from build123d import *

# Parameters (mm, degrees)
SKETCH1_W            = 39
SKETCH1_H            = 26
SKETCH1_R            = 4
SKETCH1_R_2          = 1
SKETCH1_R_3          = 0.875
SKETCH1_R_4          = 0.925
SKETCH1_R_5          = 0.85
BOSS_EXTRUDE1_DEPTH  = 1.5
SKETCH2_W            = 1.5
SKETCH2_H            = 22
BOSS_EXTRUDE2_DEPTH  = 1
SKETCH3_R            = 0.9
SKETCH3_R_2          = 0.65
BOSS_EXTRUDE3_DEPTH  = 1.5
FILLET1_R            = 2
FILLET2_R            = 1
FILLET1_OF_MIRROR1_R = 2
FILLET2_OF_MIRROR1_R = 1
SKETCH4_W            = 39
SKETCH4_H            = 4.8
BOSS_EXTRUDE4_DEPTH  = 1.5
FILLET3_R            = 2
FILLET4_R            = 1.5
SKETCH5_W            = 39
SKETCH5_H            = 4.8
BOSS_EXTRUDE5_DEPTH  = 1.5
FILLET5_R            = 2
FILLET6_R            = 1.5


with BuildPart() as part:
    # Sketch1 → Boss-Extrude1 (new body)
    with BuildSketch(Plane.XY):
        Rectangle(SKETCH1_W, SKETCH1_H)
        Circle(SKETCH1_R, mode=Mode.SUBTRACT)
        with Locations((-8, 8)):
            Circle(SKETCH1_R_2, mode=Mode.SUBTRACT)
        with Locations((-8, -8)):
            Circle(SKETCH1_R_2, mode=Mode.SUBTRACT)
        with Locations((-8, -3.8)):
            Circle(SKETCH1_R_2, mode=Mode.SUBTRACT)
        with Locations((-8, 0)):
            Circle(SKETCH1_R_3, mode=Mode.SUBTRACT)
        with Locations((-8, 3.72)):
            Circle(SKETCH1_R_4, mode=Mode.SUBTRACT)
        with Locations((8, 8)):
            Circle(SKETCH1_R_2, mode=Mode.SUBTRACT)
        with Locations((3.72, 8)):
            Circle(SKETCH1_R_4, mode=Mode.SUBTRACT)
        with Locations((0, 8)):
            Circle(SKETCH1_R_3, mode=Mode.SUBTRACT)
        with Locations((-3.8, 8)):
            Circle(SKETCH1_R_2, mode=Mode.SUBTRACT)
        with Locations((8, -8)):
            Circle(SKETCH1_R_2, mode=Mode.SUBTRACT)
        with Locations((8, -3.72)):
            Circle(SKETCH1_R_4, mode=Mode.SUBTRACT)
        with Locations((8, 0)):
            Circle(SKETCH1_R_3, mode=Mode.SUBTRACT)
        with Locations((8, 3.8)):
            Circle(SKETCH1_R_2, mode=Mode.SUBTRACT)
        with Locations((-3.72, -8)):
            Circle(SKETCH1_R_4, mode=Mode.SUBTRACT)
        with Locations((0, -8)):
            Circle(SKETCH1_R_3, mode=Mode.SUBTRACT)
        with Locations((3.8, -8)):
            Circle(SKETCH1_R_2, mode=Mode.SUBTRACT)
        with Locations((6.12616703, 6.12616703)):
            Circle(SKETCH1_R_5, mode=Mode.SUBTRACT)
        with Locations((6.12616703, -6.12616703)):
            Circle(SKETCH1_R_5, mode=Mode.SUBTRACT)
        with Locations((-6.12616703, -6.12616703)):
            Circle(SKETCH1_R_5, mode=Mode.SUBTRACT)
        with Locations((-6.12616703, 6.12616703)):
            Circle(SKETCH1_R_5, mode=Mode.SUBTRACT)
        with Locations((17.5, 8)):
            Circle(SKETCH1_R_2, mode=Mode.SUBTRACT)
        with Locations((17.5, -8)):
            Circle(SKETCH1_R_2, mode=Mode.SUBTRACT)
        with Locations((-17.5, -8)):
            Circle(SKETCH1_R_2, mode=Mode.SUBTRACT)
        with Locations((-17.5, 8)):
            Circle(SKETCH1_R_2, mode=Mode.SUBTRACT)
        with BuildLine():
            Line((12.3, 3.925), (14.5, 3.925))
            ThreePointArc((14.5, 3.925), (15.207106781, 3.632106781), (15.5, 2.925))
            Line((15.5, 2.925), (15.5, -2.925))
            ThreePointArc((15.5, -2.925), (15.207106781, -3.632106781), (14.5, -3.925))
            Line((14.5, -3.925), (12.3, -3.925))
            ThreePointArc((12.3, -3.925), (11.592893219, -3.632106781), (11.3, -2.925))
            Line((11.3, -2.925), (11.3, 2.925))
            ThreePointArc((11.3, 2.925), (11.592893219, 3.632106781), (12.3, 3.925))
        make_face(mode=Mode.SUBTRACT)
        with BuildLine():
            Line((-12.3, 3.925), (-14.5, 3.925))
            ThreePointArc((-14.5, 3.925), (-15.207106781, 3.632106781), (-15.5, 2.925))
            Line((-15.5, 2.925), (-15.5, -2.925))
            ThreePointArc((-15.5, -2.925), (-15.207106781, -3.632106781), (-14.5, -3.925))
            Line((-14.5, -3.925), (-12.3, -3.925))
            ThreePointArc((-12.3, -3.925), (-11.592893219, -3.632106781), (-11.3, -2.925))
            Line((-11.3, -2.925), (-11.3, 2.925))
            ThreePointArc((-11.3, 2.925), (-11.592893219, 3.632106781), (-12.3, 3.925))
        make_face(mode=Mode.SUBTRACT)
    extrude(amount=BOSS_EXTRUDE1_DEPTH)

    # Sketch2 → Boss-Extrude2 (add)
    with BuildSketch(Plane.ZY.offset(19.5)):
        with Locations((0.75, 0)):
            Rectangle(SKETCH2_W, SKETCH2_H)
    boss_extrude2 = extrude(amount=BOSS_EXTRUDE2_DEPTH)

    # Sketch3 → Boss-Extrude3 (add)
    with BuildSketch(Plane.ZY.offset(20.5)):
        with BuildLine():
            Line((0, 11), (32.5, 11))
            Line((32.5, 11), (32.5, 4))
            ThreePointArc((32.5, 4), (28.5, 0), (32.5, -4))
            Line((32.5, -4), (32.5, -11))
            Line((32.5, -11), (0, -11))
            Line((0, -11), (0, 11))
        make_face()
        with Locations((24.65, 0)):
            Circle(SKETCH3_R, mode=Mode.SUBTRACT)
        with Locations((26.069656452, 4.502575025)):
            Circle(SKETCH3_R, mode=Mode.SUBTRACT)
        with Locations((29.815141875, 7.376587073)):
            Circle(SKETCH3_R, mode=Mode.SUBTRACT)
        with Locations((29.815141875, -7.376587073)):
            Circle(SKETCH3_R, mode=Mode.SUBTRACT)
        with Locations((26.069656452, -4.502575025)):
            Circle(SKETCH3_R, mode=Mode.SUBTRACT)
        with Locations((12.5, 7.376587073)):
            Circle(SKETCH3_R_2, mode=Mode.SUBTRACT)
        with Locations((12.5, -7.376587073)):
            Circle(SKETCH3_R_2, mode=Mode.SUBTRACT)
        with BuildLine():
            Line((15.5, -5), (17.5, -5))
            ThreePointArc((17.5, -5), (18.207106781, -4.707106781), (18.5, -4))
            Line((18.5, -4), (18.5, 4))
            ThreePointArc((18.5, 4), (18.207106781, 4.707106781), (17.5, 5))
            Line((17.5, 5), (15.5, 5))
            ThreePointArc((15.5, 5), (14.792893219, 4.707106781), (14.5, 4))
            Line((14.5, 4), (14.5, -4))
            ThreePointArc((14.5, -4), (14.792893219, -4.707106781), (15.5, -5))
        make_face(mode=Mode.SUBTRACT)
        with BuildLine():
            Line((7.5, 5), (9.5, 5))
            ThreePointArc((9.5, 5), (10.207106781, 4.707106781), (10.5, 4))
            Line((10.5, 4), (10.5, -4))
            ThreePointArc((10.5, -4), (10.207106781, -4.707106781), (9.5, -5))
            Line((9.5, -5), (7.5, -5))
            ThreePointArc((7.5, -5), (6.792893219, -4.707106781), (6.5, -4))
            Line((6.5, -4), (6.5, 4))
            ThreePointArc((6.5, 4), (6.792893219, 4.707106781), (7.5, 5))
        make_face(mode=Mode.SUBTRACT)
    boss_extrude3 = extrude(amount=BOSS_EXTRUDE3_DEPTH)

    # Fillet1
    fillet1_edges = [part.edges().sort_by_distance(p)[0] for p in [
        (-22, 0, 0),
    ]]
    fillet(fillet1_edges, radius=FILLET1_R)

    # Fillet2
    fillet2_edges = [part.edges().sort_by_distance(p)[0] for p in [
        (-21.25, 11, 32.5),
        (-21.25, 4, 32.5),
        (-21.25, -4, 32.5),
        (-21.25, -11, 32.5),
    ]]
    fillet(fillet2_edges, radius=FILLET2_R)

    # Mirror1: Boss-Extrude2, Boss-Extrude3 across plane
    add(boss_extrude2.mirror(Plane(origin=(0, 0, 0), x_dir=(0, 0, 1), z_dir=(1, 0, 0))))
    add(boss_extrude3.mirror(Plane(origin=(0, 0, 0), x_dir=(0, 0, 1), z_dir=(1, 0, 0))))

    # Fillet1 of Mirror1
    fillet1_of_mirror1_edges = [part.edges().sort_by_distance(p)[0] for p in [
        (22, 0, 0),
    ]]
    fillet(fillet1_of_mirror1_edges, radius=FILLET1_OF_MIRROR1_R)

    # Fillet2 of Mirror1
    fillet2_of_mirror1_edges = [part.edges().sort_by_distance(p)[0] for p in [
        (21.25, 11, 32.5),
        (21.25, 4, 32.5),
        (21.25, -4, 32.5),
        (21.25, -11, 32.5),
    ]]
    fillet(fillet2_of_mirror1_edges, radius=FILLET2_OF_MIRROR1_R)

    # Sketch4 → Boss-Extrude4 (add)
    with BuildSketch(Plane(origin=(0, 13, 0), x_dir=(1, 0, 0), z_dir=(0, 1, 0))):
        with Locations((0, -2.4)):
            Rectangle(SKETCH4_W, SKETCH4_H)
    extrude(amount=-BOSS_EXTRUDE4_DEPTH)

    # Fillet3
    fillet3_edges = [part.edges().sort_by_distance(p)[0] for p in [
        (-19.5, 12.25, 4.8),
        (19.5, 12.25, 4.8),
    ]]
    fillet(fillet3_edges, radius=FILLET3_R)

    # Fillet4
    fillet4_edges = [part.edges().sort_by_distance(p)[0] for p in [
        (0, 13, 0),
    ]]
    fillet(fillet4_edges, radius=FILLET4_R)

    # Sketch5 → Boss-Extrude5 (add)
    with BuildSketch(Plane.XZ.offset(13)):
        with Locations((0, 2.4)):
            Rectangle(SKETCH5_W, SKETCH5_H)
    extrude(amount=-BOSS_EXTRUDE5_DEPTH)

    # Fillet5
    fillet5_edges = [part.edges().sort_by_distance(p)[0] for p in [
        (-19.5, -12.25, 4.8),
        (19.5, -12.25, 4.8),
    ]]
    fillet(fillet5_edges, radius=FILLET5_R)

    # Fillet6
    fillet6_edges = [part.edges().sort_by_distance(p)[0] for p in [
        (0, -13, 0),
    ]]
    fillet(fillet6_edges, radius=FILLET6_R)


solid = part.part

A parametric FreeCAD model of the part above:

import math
import FreeCAD as App
import Part
import Sketcher
from FreeCAD import Vector
Q = App.Units.Quantity


def edges_at(feature, points):
    """Names of the edges that pass closest to the given points."""
    edges = feature.Shape.Edges
    near = lambda p: min(range(len(edges)), key=lambda i: edges[i].distToShape(Part.Vertex(*p))[0])
    return sorted({f"Edge{near(p) + 1}" for p in points})

doc = App.newDocument("Part")
body = doc.addObject("PartDesign::Body", "Body")

sketch1 = body.newObject("Sketcher::SketchObject", "Sketch")
sketch1.AttachmentSupport = (doc.getObject("XY_Plane"), [""])
sketch1.MapMode = "FlatFace"
sketch1.addGeometry(Part.LineSegment(Vector(-19.5, 13, 0), Vector(-19.5, -13, 0)), False)
sketch1.addGeometry(Part.LineSegment(Vector(-19.5, -13, 0), Vector(19.5, -13, 0)), False)
sketch1.addGeometry(Part.LineSegment(Vector(19.5, -13, 0), Vector(19.5, 13, 0)), False)
sketch1.addGeometry(Part.LineSegment(Vector(19.5, 13, 0), Vector(-19.5, 13, 0)), False)
sketch1.addGeometry(Part.Circle(Vector(-17.5, -8, 0), Vector(0, 0, 1), 1), False)
sketch1.addGeometry(Part.Circle(Vector(-8, -8, 0), Vector(0, 0, 1), 1), False)
sketch1.addGeometry(Part.Circle(Vector(-3.7, -8, 0), Vector(0, 0, 1), 0.9), False)
sketch1.addGeometry(Part.Circle(Vector(-6.1, -6.1, 0), Vector(0, 0, 1), 0.8), False)
sketch1.addGeometry(Part.Circle(Vector(-8, -3.8, 0), Vector(0, 0, 1), 1), False)
sketch1.addGeometry(Part.Circle(Vector(0, -8, 0), Vector(0, 0, 1), 0.9), False)
sketch1.addGeometry(Part.Circle(Vector(3.8, -8, 0), Vector(0, 0, 1), 1), False)
sketch1.addGeometry(Part.Circle(Vector(8, -8, 0), Vector(0, 0, 1), 1), False)
sketch1.addGeometry(Part.Circle(Vector(6.1, -6.1, 0), Vector(0, 0, 1), 0.8), False)
sketch1.addGeometry(Part.Circle(Vector(17.5, -8, 0), Vector(0, 0, 1), 1), False)
sketch1.addGeometry(Part.Circle(Vector(8, -3.7, 0), Vector(0, 0, 1), 0.9), False)
sketch1.addGeometry(Part.LineSegment(Vector(-14.5, 3.9, 0), Vector(-12.3, 3.9, 0)), False)
sketch1.addGeometry(Part.ArcOfCircle(Part.Circle(Vector(-12.3, 2.9, 0), Vector(0, 0, 1), 1), math.radians(0), math.radians(90)), False)
sketch1.addGeometry(Part.LineSegment(Vector(-11.3, 2.9, 0), Vector(-11.3, -2.9, 0)), False)
sketch1.addGeometry(Part.ArcOfCircle(Part.Circle(Vector(-12.3, -2.9, 0), Vector(0, 0, 1), 1), math.radians(-90), math.radians(0)), False)
sketch1.addGeometry(Part.LineSegment(Vector(-12.3, -3.9, 0), Vector(-14.5, -3.9, 0)), False)
sketch1.addGeometry(Part.ArcOfCircle(Part.Circle(Vector(-14.5, -2.9, 0), Vector(0, 0, 1), 1), math.radians(-180), math.radians(-90)), False)
sketch1.addGeometry(Part.LineSegment(Vector(-15.5, -2.9, 0), Vector(-15.5, 2.9, 0)), False)
sketch1.addGeometry(Part.ArcOfCircle(Part.Circle(Vector(-14.5, 2.9, 0), Vector(0, 0, 1), 1), math.radians(90), math.radians(180)), False)
sketch1.addGeometry(Part.Circle(Vector(-8, 0, 0), Vector(0, 0, 1), 0.9), False)
sketch1.addGeometry(Part.Circle(Vector(-8, 3.7, 0), Vector(0, 0, 1), 0.9), False)
sketch1.addGeometry(Part.Circle(Vector(-17.5, 8, 0), Vector(0, 0, 1), 1), False)
sketch1.addGeometry(Part.Circle(Vector(-6.1, 6.1, 0), Vector(0, 0, 1), 0.8), False)
sketch1.addGeometry(Part.Circle(Vector(-8, 8, 0), Vector(0, 0, 1), 1), False)
sketch1.addGeometry(Part.Circle(Vector(-3.8, 8, 0), Vector(0, 0, 1), 1), False)
sketch1.addGeometry(Part.Circle(Vector(0, 0, 0), Vector(0, 0, 1), 4), False)
sketch1.addGeometry(Part.Circle(Vector(8, 0, 0), Vector(0, 0, 1), 0.9), False)
sketch1.addGeometry(Part.Circle(Vector(8, 3.8, 0), Vector(0, 0, 1), 1), False)
sketch1.addGeometry(Part.ArcOfCircle(Part.Circle(Vector(12.3, 2.9, 0), Vector(0, 0, 1), 1), math.radians(90), math.radians(180)), False)
sketch1.addGeometry(Part.LineSegment(Vector(12.3, 3.9, 0), Vector(14.5, 3.9, 0)), False)
sketch1.addGeometry(Part.ArcOfCircle(Part.Circle(Vector(14.5, 2.9, 0), Vector(0, 0, 1), 1), math.radians(0), math.radians(90)), False)
sketch1.addGeometry(Part.LineSegment(Vector(15.5, 2.9, 0), Vector(15.5, -2.9, 0)), False)
sketch1.addGeometry(Part.ArcOfCircle(Part.Circle(Vector(14.5, -2.9, 0), Vector(0, 0, 1), 1), math.radians(-90), math.radians(0)), False)
sketch1.addGeometry(Part.LineSegment(Vector(14.5, -3.9, 0), Vector(12.3, -3.9, 0)), False)
sketch1.addGeometry(Part.ArcOfCircle(Part.Circle(Vector(12.3, -2.9, 0), Vector(0, 0, 1), 1), math.radians(-180), math.radians(-90)), False)
sketch1.addGeometry(Part.LineSegment(Vector(11.3, -2.9, 0), Vector(11.3, 2.9, 0)), False)
sketch1.addGeometry(Part.Circle(Vector(6.1, 6.1, 0), Vector(0, 0, 1), 0.8), False)
sketch1.addGeometry(Part.Circle(Vector(0, 8, 0), Vector(0, 0, 1), 0.9), False)
sketch1.addGeometry(Part.Circle(Vector(3.7, 8, 0), Vector(0, 0, 1), 0.9), False)
sketch1.addGeometry(Part.Circle(Vector(8, 8, 0), Vector(0, 0, 1), 1), False)
sketch1.addGeometry(Part.Circle(Vector(17.5, 8, 0), Vector(0, 0, 1), 1), False)
sketch1.addConstraint(Sketcher.Constraint("Coincident", 0, 2, 1, 1))
sketch1.addConstraint(Sketcher.Constraint("Coincident", 1, 2, 2, 1))
sketch1.addConstraint(Sketcher.Constraint("Coincident", 2, 2, 3, 1))
sketch1.addConstraint(Sketcher.Constraint("Coincident", 3, 2, 0, 1))
sketch1.addConstraint(Sketcher.Constraint("Tangent", 15, 2, 16, 2))
sketch1.addConstraint(Sketcher.Constraint("Tangent", 16, 1, 17, 1))
sketch1.addConstraint(Sketcher.Constraint("Tangent", 17, 2, 18, 2))
sketch1.addConstraint(Sketcher.Constraint("Tangent", 18, 1, 19, 1))
sketch1.addConstraint(Sketcher.Constraint("Tangent", 19, 2, 20, 2))
sketch1.addConstraint(Sketcher.Constraint("Tangent", 20, 1, 21, 1))
sketch1.addConstraint(Sketcher.Constraint("Tangent", 21, 2, 22, 2))
sketch1.addConstraint(Sketcher.Constraint("Tangent", 22, 1, 15, 1))
sketch1.addConstraint(Sketcher.Constraint("Tangent", 32, 1, 33, 1))
sketch1.addConstraint(Sketcher.Constraint("Tangent", 33, 2, 34, 2))
sketch1.addConstraint(Sketcher.Constraint("Tangent", 34, 1, 35, 1))
sketch1.addConstraint(Sketcher.Constraint("Tangent", 35, 2, 36, 2))
sketch1.addConstraint(Sketcher.Constraint("Tangent", 36, 1, 37, 1))
sketch1.addConstraint(Sketcher.Constraint("Tangent", 37, 2, 38, 2))
sketch1.addConstraint(Sketcher.Constraint("Tangent", 38, 1, 39, 1))
sketch1.addConstraint(Sketcher.Constraint("Tangent", 39, 2, 32, 2))
sketch1.addConstraint(Sketcher.Constraint("Vertical", 0))
sketch1.addConstraint(Sketcher.Constraint("Horizontal", 1))
sketch1.addConstraint(Sketcher.Constraint("Vertical", 2))
sketch1.addConstraint(Sketcher.Constraint("Horizontal", 3))
sketch1.addConstraint(Sketcher.Constraint("Horizontal", 15))
sketch1.addConstraint(Sketcher.Constraint("Vertical", 17))
sketch1.addConstraint(Sketcher.Constraint("Horizontal", 19))
sketch1.addConstraint(Sketcher.Constraint("Vertical", 21))
sketch1.addConstraint(Sketcher.Constraint("Horizontal", 33))
sketch1.addConstraint(Sketcher.Constraint("Vertical", 35))
sketch1.addConstraint(Sketcher.Constraint("Horizontal", 37))
sketch1.addConstraint(Sketcher.Constraint("Vertical", 39))
sketch1.addConstraint(Sketcher.Constraint("Coincident", 29, 3, -1, 1))
sketch1.addConstraint(Sketcher.Constraint("Equal", 4, 5))
sketch1.addConstraint(Sketcher.Constraint("Equal", 5, 8))
sketch1.addConstraint(Sketcher.Constraint("Equal", 8, 10))
sketch1.addConstraint(Sketcher.Constraint("Equal", 10, 11))
sketch1.addConstraint(Sketcher.Constraint("Equal", 7, 12))
sketch1.addConstraint(Sketcher.Constraint("Equal", 11, 13))
sketch1.addConstraint(Sketcher.Constraint("Equal", 6, 14))
sketch1.addConstraint(Sketcher.Constraint("Equal", 13, 16))
sketch1.addConstraint(Sketcher.Constraint("Equal", 16, 18))
sketch1.addConstraint(Sketcher.Constraint("Equal", 18, 20))
sketch1.addConstraint(Sketcher.Constraint("Equal", 20, 22))
sketch1.addConstraint(Sketcher.Constraint("Equal", 9, 23))
sketch1.addConstraint(Sketcher.Constraint("Equal", 14, 24))
sketch1.addConstraint(Sketcher.Constraint("Equal", 22, 25))
sketch1.addConstraint(Sketcher.Constraint("Equal", 12, 26))
sketch1.addConstraint(Sketcher.Constraint("Equal", 25, 27))
sketch1.addConstraint(Sketcher.Constraint("Equal", 27, 28))
sketch1.addConstraint(Sketcher.Constraint("Equal", 23, 30))
sketch1.addConstraint(Sketcher.Constraint("Equal", 28, 31))
sketch1.addConstraint(Sketcher.Constraint("Equal", 31, 32))
sketch1.addConstraint(Sketcher.Constraint("Equal", 32, 34))
sketch1.addConstraint(Sketcher.Constraint("Equal", 34, 36))
sketch1.addConstraint(Sketcher.Constraint("Equal", 36, 38))
sketch1.addConstraint(Sketcher.Constraint("Equal", 26, 40))
sketch1.addConstraint(Sketcher.Constraint("Equal", 30, 41))
sketch1.addConstraint(Sketcher.Constraint("Equal", 24, 42))
sketch1.addConstraint(Sketcher.Constraint("Equal", 38, 43))
sketch1.addConstraint(Sketcher.Constraint("Equal", 43, 44))
sketch1.addConstraint(Sketcher.Constraint("Symmetric", 14, 3, 24, 3, -1, 1))
sketch1.addConstraint(Sketcher.Constraint("Symmetric", 13, 3, 25, 3, -1, 1))
sketch1.addConstraint(Sketcher.Constraint("Symmetric", 12, 3, 26, 3, -1, 1))
sketch1.addConstraint(Sketcher.Constraint("Symmetric", 11, 3, 27, 3, -1, 1))
sketch1.addConstraint(Sketcher.Constraint("Symmetric", 10, 3, 28, 3, -1, 1))
sketch1.addConstraint(Sketcher.Constraint("Symmetric", 23, 3, 30, 3, -1, 1))
sketch1.addConstraint(Sketcher.Constraint("Symmetric", 8, 3, 31, 3, -1, 1))
sketch1.addConstraint(Sketcher.Constraint("Symmetric", 18, 3, 32, 3, -1, 1))
sketch1.addConstraint(Sketcher.Constraint("Symmetric", 22, 3, 36, 3, -1, 1))
sketch1.addConstraint(Sketcher.Constraint("Symmetric", 7, 3, 40, 3, -1, 1))
sketch1.addConstraint(Sketcher.Constraint("Symmetric", 9, 3, 41, 3, -1, 1))
sketch1.addConstraint(Sketcher.Constraint("Symmetric", 6, 3, 42, 3, -1, 1))
sketch1.addConstraint(Sketcher.Constraint("Symmetric", 5, 3, 43, 3, -1, 1))
sketch1.addConstraint(Sketcher.Constraint("Symmetric", 4, 3, 44, 3, -1, 1))
sketch1.addConstraint(Sketcher.Constraint("Symmetric", 0, 2, 2, 2, -1, 1))
sketch1.addConstraint(Sketcher.Constraint("Symmetric", 5, 3, 11, 3, -2))
sketch1.addConstraint(Sketcher.Constraint("Symmetric", 7, 3, 12, 3, -2))
sketch1.addConstraint(Sketcher.Constraint("Symmetric", 4, 3, 13, 3, -2))
sketch1.addConstraint(Sketcher.Constraint("PointOnObject", 9, 3, -2))
sketch1.addConstraint(Sketcher.Constraint("PointOnObject", 23, 3, -1))
sketch1.addConstraint(Sketcher.Constraint("Horizontal", 4, 3, 5, 3))
sketch1.addConstraint(Sketcher.Constraint("Horizontal", 5, 3, 6, 3))
sketch1.addConstraint(Sketcher.Constraint("Horizontal", 6, 3, 9, 3))
sketch1.addConstraint(Sketcher.Constraint("Horizontal", 9, 3, 10, 3))
sketch1.addConstraint(Sketcher.Constraint("Horizontal", 22, 3, 32, 3))
sketch1.addConstraint(Sketcher.Constraint("Vertical", 5, 3, 8, 3))
sketch1.addConstraint(Sketcher.Constraint("Vertical", 11, 3, 14, 3))
sketch1.addConstraint(Sketcher.Constraint("Vertical", 8, 3, 23, 3))
sketch1.addConstraint(Sketcher.Constraint("Diameter", 4, Q("2 mm")))
sketch1.addConstraint(Sketcher.Constraint("Diameter", 29, Q("8 mm")))
sketch1.addConstraint(Sketcher.Constraint("Diameter", 7, Q("1.7 mm")))
sketch1.addConstraint(Sketcher.Constraint("Diameter", 6, Q("1.85 mm")))
sketch1.addConstraint(Sketcher.Constraint("Diameter", 9, Q("1.75 mm")))
sketch1.addConstraint(Sketcher.Constraint("DistanceX", 1, 1, 1, 2, Q("39 mm")))
sketch1.addConstraint(Sketcher.Constraint("DistanceY", 0, 2, 0, 1, Q("26 mm")))
sketch1.addConstraint(Sketcher.Constraint("DistanceX", 15, 1, 15, 2, Q("2.2 mm")))
sketch1.addConstraint(Sketcher.Constraint("DistanceY", 4, 3, -1, 1, Q("8 mm")))
sketch1.addConstraint(Sketcher.Constraint("DistanceX", 5, 3, -1, 1, Q("8 mm")))
sketch1.addConstraint(Sketcher.Constraint("DistanceX", 4, 3, 20, 3, Q("3 mm")))
sketch1.addConstraint(Sketcher.Constraint("DistanceX", 0, 2, 4, 3, Q("2 mm")))
sketch1.addConstraint(Sketcher.Constraint("DistanceY", 17, 2, 17, 1, Q("5.85 mm")))
sketch1.addConstraint(Sketcher.Constraint("DistanceY", 8, 3, -1, 1, Q("3.8 mm")))
sketch1.addConstraint(Sketcher.Constraint("DistanceX", -1, 1, 10, 3, Q("3.8 mm")))
sketch1.addConstraint(Sketcher.Constraint("DistanceX", 6, 3, -1, 1, Q("3.72 mm")))
sketch1.addConstraint(Sketcher.Constraint("DistanceY", 14, 3, -1, 1, Q("3.72 mm")))
sketch1.addConstraint(Sketcher.Constraint("DistanceX", 7, 3, -1, 1, Q("6.126167 mm")))
sketch1.addConstraint(Sketcher.Constraint("DistanceY", 7, 3, -1, 1, Q("6.126167 mm")))
pad1 = body.newObject("PartDesign::Pad", "Pad")
pad1.Profile = sketch1
pad1.Length = 1.5

sketch2 = body.newObject("Sketcher::SketchObject", "Sketch001")
sketch2.AttachmentSupport = (doc.getObject("YZ_Plane"), [""])
sketch2.MapMode = "FlatFace"
sketch2.AttachmentOffset = App.Placement(Vector(0, 0, -19.5), App.Rotation())
sketch2.addGeometry(Part.LineSegment(Vector(11, 0, 0), Vector(-11, 0, 0)), False)
sketch2.addGeometry(Part.LineSegment(Vector(-11, 0, 0), Vector(-11, 1.5, 0)), False)
sketch2.addGeometry(Part.LineSegment(Vector(-11, 1.5, 0), Vector(11, 1.5, 0)), False)
sketch2.addGeometry(Part.LineSegment(Vector(11, 1.5, 0), Vector(11, 0, 0)), False)
sketch2.addConstraint(Sketcher.Constraint("Coincident", 0, 2, 1, 1))
sketch2.addConstraint(Sketcher.Constraint("Coincident", 1, 2, 2, 1))
sketch2.addConstraint(Sketcher.Constraint("Coincident", 2, 2, 3, 1))
sketch2.addConstraint(Sketcher.Constraint("Coincident", 3, 2, 0, 1))
sketch2.addConstraint(Sketcher.Constraint("Horizontal", 0))
sketch2.addConstraint(Sketcher.Constraint("Vertical", 1))
sketch2.addConstraint(Sketcher.Constraint("Horizontal", 2))
sketch2.addConstraint(Sketcher.Constraint("Vertical", 3))
sketch2.addConstraint(Sketcher.Constraint("Symmetric", 0, 2, 3, 2, -1, 1))
sketch2.addConstraint(Sketcher.Constraint("DistanceX", 0, 2, 0, 1, Q("22 mm")))
sketch2.addConstraint(Sketcher.Constraint("DistanceY", 1, 1, 1, 2, Q("1.5 mm")))
pad2 = body.newObject("PartDesign::Pad", "Pad001")
pad2.Profile = sketch2
pad2.Length = 1
pad2.Reversed = True

sketch3 = body.newObject("Sketcher::SketchObject", "Sketch002")
sketch3.AttachmentSupport = (doc.getObject("YZ_Plane"), [""])
sketch3.MapMode = "FlatFace"
sketch3.AttachmentOffset = App.Placement(Vector(0, 0, -20.5), App.Rotation())
sketch3.addGeometry(Part.LineSegment(Vector(11, 32.5, 0), Vector(11, 0, 0)), False)
sketch3.addGeometry(Part.LineSegment(Vector(11, 0, 0), Vector(-11, 0, 0)), False)
sketch3.addGeometry(Part.LineSegment(Vector(-11, 0, 0), Vector(-11, 32.5, 0)), False)
sketch3.addGeometry(Part.LineSegment(Vector(-11, 32.5, 0), Vector(-4, 32.5, 0)), False)
sketch3.addGeometry(Part.ArcOfCircle(Part.Circle(Vector(0, 32.5, 0), Vector(0, 0, 1), 4), math.radians(180), math.radians(360)), False)
sketch3.addGeometry(Part.LineSegment(Vector(4, 32.5, 0), Vector(11, 32.5, 0)), False)
sketch3.addGeometry(Part.Circle(Vector(-7.4, 29.8, 0), Vector(0, 0, 1), 0.9), False)
sketch3.addGeometry(Part.Circle(Vector(-4.5, 26.1, 0), Vector(0, 0, 1), 0.9), False)
sketch3.addGeometry(Part.Circle(Vector(-7.4, 12.5, 0), Vector(0, 0, 1), 0.7), False)
sketch3.addGeometry(Part.Circle(Vector(0, 24.6, 0), Vector(0, 0, 1), 0.9), False)
sketch3.addGeometry(Part.Circle(Vector(4.5, 26.1, 0), Vector(0, 0, 1), 0.9), False)
sketch3.addGeometry(Part.Circle(Vector(7.4, 29.8, 0), Vector(0, 0, 1), 0.9), False)
sketch3.addGeometry(Part.ArcOfCircle(Part.Circle(Vector(-4, 15.5, 0), Vector(0, 0, 1), 1), math.radians(-180), math.radians(-90)), False)
sketch3.addGeometry(Part.LineSegment(Vector(-4, 14.5, 0), Vector(4, 14.5, 0)), False)
sketch3.addGeometry(Part.ArcOfCircle(Part.Circle(Vector(4, 15.5, 0), Vector(0, 0, 1), 1), math.radians(-90), math.radians(0)), False)
sketch3.addGeometry(Part.LineSegment(Vector(5, 15.5, 0), Vector(5, 17.5, 0)), False)
sketch3.addGeometry(Part.ArcOfCircle(Part.Circle(Vector(4, 17.5, 0), Vector(0, 0, 1), 1), math.radians(0), math.radians(90)), False)
sketch3.addGeometry(Part.LineSegment(Vector(4, 18.5, 0), Vector(-4, 18.5, 0)), False)
sketch3.addGeometry(Part.ArcOfCircle(Part.Circle(Vector(-4, 17.5, 0), Vector(0, 0, 1), 1), math.radians(90), math.radians(180)), False)
sketch3.addGeometry(Part.LineSegment(Vector(-5, 17.5, 0), Vector(-5, 15.5, 0)), False)
sketch3.addGeometry(Part.LineSegment(Vector(5, 7.5, 0), Vector(5, 9.5, 0)), False)
sketch3.addGeometry(Part.ArcOfCircle(Part.Circle(Vector(4, 9.5, 0), Vector(0, 0, 1), 1), math.radians(0), math.radians(90)), False)
sketch3.addGeometry(Part.LineSegment(Vector(4, 10.5, 0), Vector(-4, 10.5, 0)), False)
sketch3.addGeometry(Part.ArcOfCircle(Part.Circle(Vector(-4, 9.5, 0), Vector(0, 0, 1), 1), math.radians(90), math.radians(180)), False)
sketch3.addGeometry(Part.LineSegment(Vector(-5, 9.5, 0), Vector(-5, 7.5, 0)), False)
sketch3.addGeometry(Part.ArcOfCircle(Part.Circle(Vector(-4, 7.5, 0), Vector(0, 0, 1), 1), math.radians(-180), math.radians(-90)), False)
sketch3.addGeometry(Part.LineSegment(Vector(-4, 6.5, 0), Vector(4, 6.5, 0)), False)
sketch3.addGeometry(Part.ArcOfCircle(Part.Circle(Vector(4, 7.5, 0), Vector(0, 0, 1), 1), math.radians(-90), math.radians(0)), False)
sketch3.addGeometry(Part.Circle(Vector(7.4, 12.5, 0), Vector(0, 0, 1), 0.7), False)
sketch3.addConstraint(Sketcher.Constraint("Coincident", 0, 2, 1, 1))
sketch3.addConstraint(Sketcher.Constraint("Coincident", 1, 2, 2, 1))
sketch3.addConstraint(Sketcher.Constraint("Coincident", 2, 2, 3, 1))
sketch3.addConstraint(Sketcher.Constraint("Coincident", 3, 2, 4, 1))
sketch3.addConstraint(Sketcher.Constraint("Coincident", 4, 2, 5, 1))
sketch3.addConstraint(Sketcher.Constraint("Coincident", 5, 2, 0, 1))
sketch3.addConstraint(Sketcher.Constraint("Tangent", 12, 2, 13, 1))
sketch3.addConstraint(Sketcher.Constraint("Tangent", 13, 2, 14, 1))
sketch3.addConstraint(Sketcher.Constraint("Tangent", 14, 2, 15, 1))
sketch3.addConstraint(Sketcher.Constraint("Tangent", 15, 2, 16, 1))
sketch3.addConstraint(Sketcher.Constraint("Tangent", 16, 2, 17, 1))
sketch3.addConstraint(Sketcher.Constraint("Tangent", 17, 2, 18, 1))
sketch3.addConstraint(Sketcher.Constraint("Tangent", 18, 2, 19, 1))
sketch3.addConstraint(Sketcher.Constraint("Tangent", 19, 2, 12, 1))
sketch3.addConstraint(Sketcher.Constraint("Tangent", 20, 2, 21, 1))
sketch3.addConstraint(Sketcher.Constraint("Tangent", 21, 2, 22, 1))
sketch3.addConstraint(Sketcher.Constraint("Tangent", 22, 2, 23, 1))
sketch3.addConstraint(Sketcher.Constraint("Tangent", 23, 2, 24, 1))
sketch3.addConstraint(Sketcher.Constraint("Tangent", 24, 2, 25, 1))
sketch3.addConstraint(Sketcher.Constraint("Tangent", 25, 2, 26, 1))
sketch3.addConstraint(Sketcher.Constraint("Tangent", 26, 2, 27, 1))
sketch3.addConstraint(Sketcher.Constraint("Tangent", 27, 2, 20, 1))
sketch3.addConstraint(Sketcher.Constraint("Vertical", 0))
sketch3.addConstraint(Sketcher.Constraint("Horizontal", 1))
sketch3.addConstraint(Sketcher.Constraint("Vertical", 2))
sketch3.addConstraint(Sketcher.Constraint("Horizontal", 3))
sketch3.addConstraint(Sketcher.Constraint("Horizontal", 5))
sketch3.addConstraint(Sketcher.Constraint("Horizontal", 13))
sketch3.addConstraint(Sketcher.Constraint("Vertical", 15))
sketch3.addConstraint(Sketcher.Constraint("Horizontal", 17))
sketch3.addConstraint(Sketcher.Constraint("Vertical", 19))
sketch3.addConstraint(Sketcher.Constraint("Vertical", 20))
sketch3.addConstraint(Sketcher.Constraint("Horizontal", 22))
sketch3.addConstraint(Sketcher.Constraint("Vertical", 24))
sketch3.addConstraint(Sketcher.Constraint("Horizontal", 26))
sketch3.addConstraint(Sketcher.Constraint("Equal", 6, 7))
sketch3.addConstraint(Sketcher.Constraint("Equal", 7, 9))
sketch3.addConstraint(Sketcher.Constraint("Equal", 9, 10))
sketch3.addConstraint(Sketcher.Constraint("Equal", 10, 11))
sketch3.addConstraint(Sketcher.Constraint("Equal", 12, 14))
sketch3.addConstraint(Sketcher.Constraint("Equal", 14, 16))
sketch3.addConstraint(Sketcher.Constraint("Equal", 16, 18))
sketch3.addConstraint(Sketcher.Constraint("Equal", 18, 21))
sketch3.addConstraint(Sketcher.Constraint("Equal", 21, 23))
sketch3.addConstraint(Sketcher.Constraint("Equal", 23, 25))
sketch3.addConstraint(Sketcher.Constraint("Equal", 25, 27))
sketch3.addConstraint(Sketcher.Constraint("Equal", 8, 28))
sketch3.addConstraint(Sketcher.Constraint("Symmetric", 0, 2, 1, 2, -1, 1))
sketch3.addConstraint(Sketcher.Constraint("Symmetric", 7, 3, 10, 3, -2))
sketch3.addConstraint(Sketcher.Constraint("Symmetric", 6, 3, 11, 3, -2))
sketch3.addConstraint(Sketcher.Constraint("Symmetric", 8, 3, 28, 3, -2))
sketch3.addConstraint(Sketcher.Constraint("Symmetric", 3, 2, 4, 2, -2))
sketch3.addConstraint(Sketcher.Constraint("PointOnObject", 9, 3, -2))
sketch3.addConstraint(Sketcher.Constraint("Horizontal", 4, 3, 2, 2))
sketch3.addConstraint(Sketcher.Constraint("Vertical", 6, 3, 8, 3))
sketch3.addConstraint(Sketcher.Constraint("Vertical", 16, 3, 21, 3))
sketch3.addConstraint(Sketcher.Constraint("Vertical", 18, 3, 23, 3))
sketch3.addConstraint(Sketcher.Constraint("Vertical", 25, 3, 3, 2))
sketch3.addConstraint(Sketcher.Constraint("Vertical", 27, 3, 4, 2))
sketch3.addConstraint(Sketcher.Constraint("Equal", 19, 20))
sketch3.addConstraint(Sketcher.Constraint("Radius", 4, Q("4 mm")))
sketch3.addConstraint(Sketcher.Constraint("Radius", 12, Q("1 mm")))
sketch3.addConstraint(Sketcher.Constraint("Diameter", 6, Q("1.8 mm")))
sketch3.addConstraint(Sketcher.Constraint("Diameter", 8, Q("1.3 mm")))
sketch3.addConstraint(Sketcher.Constraint("DistanceX", 1, 2, 1, 1, Q("22 mm")))
sketch3.addConstraint(Sketcher.Constraint("DistanceY", 15, 1, 15, 2, Q("2 mm")))
sketch3.addConstraint(Sketcher.Constraint("DistanceY", 0, 2, 0, 1, Q("32.5 mm")))
sketch3.addConstraint(Sketcher.Constraint("DistanceY", 8, 3, 4, 3, Q("20 mm")))
sketch3.addConstraint(Sketcher.Constraint("DistanceY", 8, 3, 12, 3, Q("3 mm")))
sketch3.addConstraint(Sketcher.Constraint("DistanceY", 21, 3, 14, 3, Q("6 mm")))
sketch3.addConstraint(Sketcher.Constraint("DistanceY", -1, 1, 9, 3, Q("24.65 mm")))
sketch3.addConstraint(Sketcher.Constraint("DistanceY", -1, 1, 6, 3, Q("29.815142 mm")))
sketch3.addConstraint(Sketcher.Constraint("DistanceX", 7, 3, 10, 3, Q("9.00515 mm")))
sketch3.addConstraint(Sketcher.Constraint("DistanceX", 6, 3, -1, 1, Q("7.376587 mm")))
sketch3.addConstraint(Sketcher.Constraint("DistanceY", -1, 1, 7, 3, Q("26.069656 mm")))
pad3 = body.newObject("PartDesign::Pad", "Pad002")
pad3.Profile = sketch3
pad3.Length = 1.5
pad3.Reversed = True
doc.recompute()

fillet = body.newObject("PartDesign::Fillet", "Fillet")
fillet.Base = (pad3, edges_at(pad3, [(-22, 0, 0)]))
fillet.Radius = 2
doc.recompute()

fillet2 = body.newObject("PartDesign::Fillet", "Fillet001")
fillet2.Base = (fillet, edges_at(fillet, [
    (-21.25, 11, 32.5),
    (-21.25, 4, 32.5),
    (-21.25, -4, 32.5),
    (-21.25, -11, 32.5),
]))
fillet2.Radius = 1
doc.recompute()

mirrored = body.newObject("PartDesign::Mirrored", "Mirrored")
mirrored.Originals = [pad2, pad3]
mirrored.MirrorPlane = (doc.getObject("YZ_Plane"), [""])
body.Tip = mirrored
doc.recompute()

fillet3 = body.newObject("PartDesign::Fillet", "Fillet002")
fillet3.Base = (mirrored, edges_at(mirrored, [(22, 0, 0)]))
fillet3.Radius = 2
doc.recompute()

fillet4 = body.newObject("PartDesign::Fillet", "Fillet003")
fillet4.Base = (fillet3, edges_at(fillet3, [
    (21.25, 11, 32.5),
    (21.25, 4, 32.5),
    (21.25, -4, 32.5),
    (21.25, -11, 32.5),
]))
fillet4.Radius = 1

sketch4 = body.newObject("Sketcher::SketchObject", "Sketch003")
sketch4.AttachmentSupport = (doc.getObject("XZ_Plane"), [""])
sketch4.MapMode = "FlatFace"
sketch4.AttachmentOffset = App.Placement(Vector(0, 0, -13), App.Rotation())
sketch4.addGeometry(Part.LineSegment(Vector(-19.5, 0, 0), Vector(-19.5, 4.8, 0)), False)
sketch4.addGeometry(Part.LineSegment(Vector(-19.5, 4.8, 0), Vector(19.5, 4.8, 0)), False)
sketch4.addGeometry(Part.LineSegment(Vector(19.5, 4.8, 0), Vector(19.5, 0, 0)), False)
sketch4.addGeometry(Part.LineSegment(Vector(19.5, 0, 0), Vector(-19.5, 0, 0)), False)
sketch4.addConstraint(Sketcher.Constraint("Coincident", 0, 2, 1, 1))
sketch4.addConstraint(Sketcher.Constraint("Coincident", 1, 2, 2, 1))
sketch4.addConstraint(Sketcher.Constraint("Coincident", 2, 2, 3, 1))
sketch4.addConstraint(Sketcher.Constraint("Coincident", 3, 2, 0, 1))
sketch4.addConstraint(Sketcher.Constraint("Vertical", 0))
sketch4.addConstraint(Sketcher.Constraint("Horizontal", 1))
sketch4.addConstraint(Sketcher.Constraint("Vertical", 2))
sketch4.addConstraint(Sketcher.Constraint("Horizontal", 3))
sketch4.addConstraint(Sketcher.Constraint("Symmetric", 2, 2, 3, 2, -1, 1))
sketch4.addConstraint(Sketcher.Constraint("DistanceX", 1, 1, 1, 2, Q("39 mm")))
sketch4.addConstraint(Sketcher.Constraint("DistanceY", 0, 1, 0, 2, Q("4.8 mm")))
pad4 = body.newObject("PartDesign::Pad", "Pad003")
pad4.Profile = sketch4
pad4.Length = 1.5
doc.recompute()

fillet5 = body.newObject("PartDesign::Fillet", "Fillet004")
fillet5.Base = (pad4, edges_at(pad4, [(-19.5, 12.25, 4.8), (19.5, 12.25, 4.8)]))
fillet5.Radius = 2
doc.recompute()

fillet6 = body.newObject("PartDesign::Fillet", "Fillet005")
fillet6.Base = (fillet5, edges_at(fillet5, [(0, 13, 0)]))
fillet6.Radius = 1.5

sketch5 = body.newObject("Sketcher::SketchObject", "Sketch004")
sketch5.AttachmentSupport = (doc.getObject("XZ_Plane"), [""])
sketch5.MapMode = "FlatFace"
sketch5.AttachmentOffset = App.Placement(Vector(0, 0, 13), App.Rotation())
sketch5.addGeometry(Part.LineSegment(Vector(-19.5, 4.8, 0), Vector(-19.5, 0, 0)), False)
sketch5.addGeometry(Part.LineSegment(Vector(-19.5, 0, 0), Vector(19.5, 0, 0)), False)
sketch5.addGeometry(Part.LineSegment(Vector(19.5, 0, 0), Vector(19.5, 4.8, 0)), False)
sketch5.addGeometry(Part.LineSegment(Vector(19.5, 4.8, 0), Vector(-19.5, 4.8, 0)), False)
sketch5.addConstraint(Sketcher.Constraint("Coincident", 0, 2, 1, 1))
sketch5.addConstraint(Sketcher.Constraint("Coincident", 1, 2, 2, 1))
sketch5.addConstraint(Sketcher.Constraint("Coincident", 2, 2, 3, 1))
sketch5.addConstraint(Sketcher.Constraint("Coincident", 3, 2, 0, 1))
sketch5.addConstraint(Sketcher.Constraint("Vertical", 0))
sketch5.addConstraint(Sketcher.Constraint("Horizontal", 1))
sketch5.addConstraint(Sketcher.Constraint("Vertical", 2))
sketch5.addConstraint(Sketcher.Constraint("Horizontal", 3))
sketch5.addConstraint(Sketcher.Constraint("Symmetric", 0, 2, 1, 2, -1, 1))
sketch5.addConstraint(Sketcher.Constraint("DistanceX", 1, 1, 1, 2, Q("39 mm")))
sketch5.addConstraint(Sketcher.Constraint("DistanceY", 0, 2, 0, 1, Q("4.8 mm")))
pad5 = body.newObject("PartDesign::Pad", "Pad004")
pad5.Profile = sketch5
pad5.Length = 1.5
pad5.Reversed = True
doc.recompute()

fillet7 = body.newObject("PartDesign::Fillet", "Fillet006")
fillet7.Base = (pad5, edges_at(pad5, [(-19.5, -12.25, 4.8), (19.5, -12.25, 4.8)]))
fillet7.Radius = 2
doc.recompute()

fillet8 = body.newObject("PartDesign::Fillet", "Fillet007")
fillet8.Base = (fillet7, edges_at(fillet7, [(0, -13, 0)]))
fillet8.Radius = 1.5

doc.recompute()
